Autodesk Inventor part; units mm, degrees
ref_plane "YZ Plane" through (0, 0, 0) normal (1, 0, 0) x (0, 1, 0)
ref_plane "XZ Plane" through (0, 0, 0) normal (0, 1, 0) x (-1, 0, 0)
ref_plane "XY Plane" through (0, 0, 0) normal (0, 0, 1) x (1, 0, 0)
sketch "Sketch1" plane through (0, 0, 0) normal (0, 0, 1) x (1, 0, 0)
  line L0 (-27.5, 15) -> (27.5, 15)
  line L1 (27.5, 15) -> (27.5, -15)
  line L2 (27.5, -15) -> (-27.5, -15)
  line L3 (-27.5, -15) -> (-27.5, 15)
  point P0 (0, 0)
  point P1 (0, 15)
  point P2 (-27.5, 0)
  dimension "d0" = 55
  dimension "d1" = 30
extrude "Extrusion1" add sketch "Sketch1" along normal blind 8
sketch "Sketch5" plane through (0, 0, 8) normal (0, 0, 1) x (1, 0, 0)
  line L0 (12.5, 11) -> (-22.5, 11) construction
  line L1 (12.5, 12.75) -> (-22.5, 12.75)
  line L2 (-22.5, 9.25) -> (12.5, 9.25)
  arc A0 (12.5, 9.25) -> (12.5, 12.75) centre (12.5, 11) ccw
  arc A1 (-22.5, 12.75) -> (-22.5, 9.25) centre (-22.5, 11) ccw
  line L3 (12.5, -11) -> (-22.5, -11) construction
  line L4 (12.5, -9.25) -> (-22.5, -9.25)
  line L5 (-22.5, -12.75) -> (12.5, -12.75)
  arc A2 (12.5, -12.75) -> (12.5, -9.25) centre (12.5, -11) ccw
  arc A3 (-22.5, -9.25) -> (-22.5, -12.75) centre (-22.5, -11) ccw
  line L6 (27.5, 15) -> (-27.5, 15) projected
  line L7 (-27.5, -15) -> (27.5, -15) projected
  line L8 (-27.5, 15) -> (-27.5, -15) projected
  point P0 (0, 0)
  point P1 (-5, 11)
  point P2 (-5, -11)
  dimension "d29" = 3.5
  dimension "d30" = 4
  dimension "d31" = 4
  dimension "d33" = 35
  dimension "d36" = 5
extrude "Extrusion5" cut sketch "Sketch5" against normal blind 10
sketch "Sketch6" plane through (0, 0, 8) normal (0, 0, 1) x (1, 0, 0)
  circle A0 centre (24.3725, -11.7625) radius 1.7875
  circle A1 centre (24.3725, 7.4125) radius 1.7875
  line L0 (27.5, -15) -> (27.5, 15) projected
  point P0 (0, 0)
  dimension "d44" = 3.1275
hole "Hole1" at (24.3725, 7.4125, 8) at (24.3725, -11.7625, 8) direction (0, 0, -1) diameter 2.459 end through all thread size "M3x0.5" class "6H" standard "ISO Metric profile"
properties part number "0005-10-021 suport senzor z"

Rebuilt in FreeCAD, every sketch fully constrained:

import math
import FreeCAD as App
import Part
import Sketcher

doc = App.newDocument("Part")
body = doc.addObject("PartDesign::Body", "Body")

# Sketch on XY plane
sketch1 = body.newObject("Sketcher::SketchObject", "Sketch")
sketch1.AttachmentSupport = (doc.getObject("XY_Plane"), [""])
sketch1.MapMode = "FlatFace"
sketch1.addGeometry(Part.LineSegment(App.Vector(28, 15, 0), App.Vector(-28, 15, 0)), False)
sketch1.addGeometry(Part.LineSegment(App.Vector(-28, 15, 0), App.Vector(-28, -15, 0)), False)
sketch1.addGeometry(Part.LineSegment(App.Vector(-28, -15, 0), App.Vector(28, -15, 0)), False)
sketch1.addGeometry(Part.LineSegment(App.Vector(28, -15, 0), App.Vector(28, 15, 0)), False)
sketch1.addConstraint(Sketcher.Constraint("Coincident", 0, 2, 1, 1))
sketch1.addConstraint(Sketcher.Constraint("Coincident", 1, 2, 2, 1))
sketch1.addConstraint(Sketcher.Constraint("Coincident", 2, 2, 3, 1))
sketch1.addConstraint(Sketcher.Constraint("Coincident", 3, 2, 0, 1))
sketch1.addConstraint(Sketcher.Constraint("Horizontal", 0))
sketch1.addConstraint(Sketcher.Constraint("Vertical", 1))
sketch1.addConstraint(Sketcher.Constraint("Horizontal", 2))
sketch1.addConstraint(Sketcher.Constraint("Vertical", 3))
sketch1.addConstraint(Sketcher.Constraint("Symmetric", 0, 2, 2, 2, -1, 1))
sketch1.addConstraint(Sketcher.Constraint("DistanceX", 0, 2, 0, 1, 55.0))
sketch1.addConstraint(Sketcher.Constraint("DistanceY", 1, 2, 1, 1, 30.0))
pad1 = body.newObject("PartDesign::Pad", "Pad")
pad1.Profile = sketch1
pad1.Length = 8

# Sketch on XY plane
sketch2 = body.newObject("Sketcher::SketchObject", "Sketch001")
sketch2.AttachmentSupport = (doc.getObject("XY_Plane"), [""])
sketch2.MapMode = "FlatFace"
sketch2.AttachmentOffset = App.Placement(App.Vector(0, 0, 8), App.Rotation())
sketch2.addGeometry(Part.ArcOfCircle(Part.Circle(App.Vector(12.5, 11, 0), App.Vector(0, 0, 1), 1.8), math.radians(-90), math.radians(90)), False)
sketch2.addGeometry(Part.LineSegment(App.Vector(12.5, 12.8, 0), App.Vector(-22.5, 12.8, 0)), False)
sketch2.addGeometry(Part.ArcOfCircle(Part.Circle(App.Vector(-22.5, 11, 0), App.Vector(0, 0, 1), 1.8), math.radians(90), math.radians(270)), False)
sketch2.addGeometry(Part.LineSegment(App.Vector(-22.5, 9.2, 0), App.Vector(12.5, 9.2, 0)), False)
sketch2.addGeometry(Part.ArcOfCircle(Part.Circle(App.Vector(12.5, -11, 0), App.Vector(0, 0, 1), 1.8), math.radians(-90), math.radians(90)), False)
sketch2.addGeometry(Part.LineSegment(App.Vector(12.5, -9.2, 0), App.Vector(-22.5, -9.2, 0)), False)
sketch2.addGeometry(Part.ArcOfCircle(Part.Circle(App.Vector(-22.5, -11, 0), App.Vector(0, 0, 1), 1.8), math.radians(90), math.radians(270)), False)
sketch2.addGeometry(Part.LineSegment(App.Vector(-22.5, -12.8, 0), App.Vector(12.5, -12.8, 0)), False)
sketch2.addConstraint(Sketcher.Constraint("Tangent", 0, 2, 1, 1))
sketch2.addConstraint(Sketcher.Constraint("Tangent", 1, 2, 2, 1))
sketch2.addConstraint(Sketcher.Constraint("Tangent", 2, 2, 3, 1))
sketch2.addConstraint(Sketcher.Constraint("Tangent", 3, 2, 0, 1))
sketch2.addConstraint(Sketcher.Constraint("Tangent", 4, 2, 5, 1))
sketch2.addConstraint(Sketcher.Constraint("Tangent", 5, 2, 6, 1))
sketch2.addConstraint(Sketcher.Constraint("Tangent", 6, 2, 7, 1))
sketch2.addConstraint(Sketcher.Constraint("Tangent", 7, 2, 4, 1))
sketch2.addConstraint(Sketcher.Constraint("Horizontal", 1))
sketch2.addConstraint(Sketcher.Constraint("Horizontal", 3))
sketch2.addConstraint(Sketcher.Constraint("Horizontal", 5))
sketch2.addConstraint(Sketcher.Constraint("Horizontal", 7))
sketch2.addConstraint(Sketcher.Constraint("Equal", 2, 4))
sketch2.addConstraint(Sketcher.Constraint("Symmetric", 0, 3, 4, 3, -1))
sketch2.addConstraint(Sketcher.Constraint("Vertical", 2, 3, 6, 3))
sketch2.addConstraint(Sketcher.Constraint("DistanceX", 1, 2, 1, 1, 35.0))
sketch2.addConstraint(Sketcher.Constraint("Radius", 0, 1.75))
sketch2.addConstraint(Sketcher.Constraint("DistanceY", -1, 1, 0, 3, 11.0))
sketch2.addConstraint(Sketcher.Constraint("DistanceX", -1, 1, 0, 3, 12.5))
pocket1 = body.newObject("PartDesign::Pocket", "Pocket")
pocket1.Profile = sketch2
pocket1.Length = 10

# Sketch on XY plane
sketch3 = body.newObject("Sketcher::SketchObject", "Sketch002")
sketch3.AttachmentSupport = (doc.getObject("XY_Plane"), [""])
sketch3.MapMode = "FlatFace"
sketch3.AttachmentOffset = App.Placement(App.Vector(0, 0, 8), App.Rotation())
sketch3.addGeometry(Part.Circle(App.Vector(24.4, 7.4, 0), App.Vector(0, 0, 1), 1.2), False)
sketch3.addGeometry(Part.Circle(App.Vector(24.4, -11.8, 0), App.Vector(0, 0, 1), 1.2), False)
sketch3.addConstraint(Sketcher.Constraint("Equal", 0, 1))
sketch3.addConstraint(Sketcher.Constraint("Vertical", 0, 3, 1, 3))
sketch3.addConstraint(Sketcher.Constraint("Diameter", 0, 2.459))
sketch3.addConstraint(Sketcher.Constraint("DistanceY", 1, 3, 0, 3, 19.175))
sketch3.addConstraint(Sketcher.Constraint("DistanceX", -1, 1, 0, 3, 24.3725))
sketch3.addConstraint(Sketcher.Constraint("DistanceY", -1, 1, 0, 3, 7.4125))
doc.recompute()
hole = body.newObject("PartDesign::Hole", "Hole")
hole.Profile = sketch3
hole.ThreadType = "None"
hole.Diameter = 2.459
hole.DepthType = "ThroughAll"

doc.recompute()
